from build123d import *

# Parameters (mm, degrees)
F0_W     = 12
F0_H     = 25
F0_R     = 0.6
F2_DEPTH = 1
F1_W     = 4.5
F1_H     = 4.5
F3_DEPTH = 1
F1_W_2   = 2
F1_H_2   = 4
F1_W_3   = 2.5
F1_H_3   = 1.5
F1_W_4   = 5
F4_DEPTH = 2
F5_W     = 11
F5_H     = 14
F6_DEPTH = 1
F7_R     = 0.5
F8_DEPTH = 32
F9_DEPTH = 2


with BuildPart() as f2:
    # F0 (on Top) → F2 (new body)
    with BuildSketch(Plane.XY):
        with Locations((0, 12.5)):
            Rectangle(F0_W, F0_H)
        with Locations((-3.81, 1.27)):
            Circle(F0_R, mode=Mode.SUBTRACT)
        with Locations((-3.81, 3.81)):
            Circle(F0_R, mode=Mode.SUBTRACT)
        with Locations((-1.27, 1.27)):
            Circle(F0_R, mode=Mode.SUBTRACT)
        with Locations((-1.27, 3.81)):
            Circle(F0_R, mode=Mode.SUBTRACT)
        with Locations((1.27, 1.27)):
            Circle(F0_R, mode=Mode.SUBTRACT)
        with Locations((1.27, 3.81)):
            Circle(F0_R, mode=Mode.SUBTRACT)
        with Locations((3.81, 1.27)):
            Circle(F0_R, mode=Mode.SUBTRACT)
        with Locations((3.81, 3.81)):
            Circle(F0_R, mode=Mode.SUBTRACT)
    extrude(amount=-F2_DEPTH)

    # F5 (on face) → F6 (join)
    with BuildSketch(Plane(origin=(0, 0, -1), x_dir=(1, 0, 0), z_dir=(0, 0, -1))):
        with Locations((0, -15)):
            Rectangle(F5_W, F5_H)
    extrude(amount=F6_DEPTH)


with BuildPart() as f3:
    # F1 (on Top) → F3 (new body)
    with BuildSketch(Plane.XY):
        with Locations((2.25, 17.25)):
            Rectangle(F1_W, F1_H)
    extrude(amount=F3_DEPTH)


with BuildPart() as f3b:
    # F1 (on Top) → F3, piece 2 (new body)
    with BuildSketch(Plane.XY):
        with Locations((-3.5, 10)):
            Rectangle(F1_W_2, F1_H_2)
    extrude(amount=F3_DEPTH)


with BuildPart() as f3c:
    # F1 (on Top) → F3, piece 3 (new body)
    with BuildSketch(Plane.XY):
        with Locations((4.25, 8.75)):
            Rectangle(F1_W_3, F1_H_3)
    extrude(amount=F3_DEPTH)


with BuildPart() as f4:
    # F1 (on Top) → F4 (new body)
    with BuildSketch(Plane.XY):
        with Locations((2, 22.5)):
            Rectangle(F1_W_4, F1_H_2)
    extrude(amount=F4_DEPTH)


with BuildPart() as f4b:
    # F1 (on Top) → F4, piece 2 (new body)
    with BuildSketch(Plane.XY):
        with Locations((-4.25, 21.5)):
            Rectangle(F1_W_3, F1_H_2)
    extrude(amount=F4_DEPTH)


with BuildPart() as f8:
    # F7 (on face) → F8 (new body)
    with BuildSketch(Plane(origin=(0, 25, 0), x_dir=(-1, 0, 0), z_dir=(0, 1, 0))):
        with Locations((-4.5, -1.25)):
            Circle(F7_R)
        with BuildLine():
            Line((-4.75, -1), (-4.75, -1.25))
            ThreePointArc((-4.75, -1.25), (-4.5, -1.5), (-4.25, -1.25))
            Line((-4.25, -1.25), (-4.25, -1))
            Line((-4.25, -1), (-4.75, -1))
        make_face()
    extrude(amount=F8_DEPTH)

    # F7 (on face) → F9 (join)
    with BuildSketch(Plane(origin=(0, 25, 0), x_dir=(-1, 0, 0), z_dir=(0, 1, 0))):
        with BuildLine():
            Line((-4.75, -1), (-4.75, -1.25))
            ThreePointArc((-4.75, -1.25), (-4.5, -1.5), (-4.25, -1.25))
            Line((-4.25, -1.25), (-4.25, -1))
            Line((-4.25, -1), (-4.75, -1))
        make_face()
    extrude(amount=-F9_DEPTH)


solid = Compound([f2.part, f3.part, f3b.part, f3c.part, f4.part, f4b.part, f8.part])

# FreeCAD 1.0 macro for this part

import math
import FreeCAD as App
import Part
import Sketcher

V = App.Vector
Q = App.Units.Quantity

doc = App.newDocument("Part")
params = doc.addObject("Spreadsheet::Sheet", "Params")
for row, (alias, value) in enumerate([
    ("sketch1_diameter", "1.2 mm"),
    ("sketch1_width", "12 mm"),
    ("sketch1_height", "25 mm"),
    ("pad1_length", "1 mm"),
    ("sketch2_width", "11 mm"),
    ("sketch2_height", "14 mm"),
    ("pad2_length", "1 mm"),
    ("sketch3_width", "4.5 mm"),
    ("pad3_length", "1 mm"),
    ("sketch4_width", "2 mm"),
    ("sketch4_height", "4 mm"),
    ("pad4_length", "1 mm"),
    ("sketch5_width", "2.5 mm"),
    ("sketch5_height", "1.5 mm"),
    ("pad5_length", "1 mm"),
    ("sketch6_width", "5 mm"),
    ("sketch6_height", "4 mm"),
    ("pad6_length", "2 mm"),
    ("sketch7_height", "4 mm"),
    ("sketch7_width", "2.5 mm"),
    ("pad7_length", "2 mm"),
    ("sketch8_diameter", "1 mm"),
    ("pad8_length", "32 mm"),
    ("sketch9_radius", "0.25 mm"),
    ("sketch9_height", "0.25 mm"),
    ("pad9_length", "2 mm"),
], start=1):
    params.set(f"A{row}", alias)
    params.set(f"B{row}", "=" + value)
    params.setAlias(f"B{row}", alias)

body = doc.addObject("PartDesign::Body", "Body")

sketch1 = body.newObject("Sketcher::SketchObject", "Sketch")
sketch1.AttachmentSupport = (doc.getObject("XY_Plane"), [""])
sketch1.MapMode = "FlatFace"
sketch1.addGeometry([
    Part.LineSegment(V(-6, 25, 0), V(-6, 0, 0)),
    Part.LineSegment(V(-6, 0, 0), V(6, 0, 0)),
    Part.LineSegment(V(6, 0, 0), V(6, 25, 0)),
    Part.LineSegment(V(6, 25, 0), V(-6, 25, 0)),
    Part.Circle(V(-3.81, 1.27, 0), V(0, 0, 1), 0.6),
    Part.Circle(V(-1.27, 1.27, 0), V(0, 0, 1), 0.6),
    Part.Circle(V(1.27, 1.27, 0), V(0, 0, 1), 0.6),
    Part.Circle(V(3.81, 1.27, 0), V(0, 0, 1), 0.6),
    Part.Circle(V(-3.81, 3.81, 0), V(0, 0, 1), 0.6),
    Part.Circle(V(-1.27, 3.81, 0), V(0, 0, 1), 0.6),
    Part.Circle(V(1.27, 3.81, 0), V(0, 0, 1), 0.6),
    Part.Circle(V(3.81, 3.81, 0), V(0, 0, 1), 0.6),
], False)
sketch1.addConstraint([
    Sketcher.Constraint("Coincident", 0, 2, 1, 1),
    Sketcher.Constraint("Coincident", 1, 2, 2, 1),
    Sketcher.Constraint("Coincident", 2, 2, 3, 1),
    Sketcher.Constraint("Coincident", 3, 2, 0, 1),
    Sketcher.Constraint("Vertical", 0),
    Sketcher.Constraint("Horizontal", 1),
    Sketcher.Constraint("Vertical", 2),
    Sketcher.Constraint("Horizontal", 3),
    Sketcher.Constraint("Equal", 4, 5),
    Sketcher.Constraint("Equal", 5, 6),
    Sketcher.Constraint("Equal", 6, 7),
    Sketcher.Constraint("Equal", 7, 8),
    Sketcher.Constraint("Equal", 8, 9),
    Sketcher.Constraint("Equal", 9, 10),
    Sketcher.Constraint("Equal", 10, 11),
    Sketcher.Constraint("Symmetric", 0, 2, 1, 2, -1, 1),
    Sketcher.Constraint("Symmetric", 5, 3, 6, 3, -2),
    Sketcher.Constraint("Symmetric", 4, 3, 7, 3, -2),
    Sketcher.Constraint("Symmetric", 9, 3, 10, 3, -2),
    Sketcher.Constraint("Symmetric", 8, 3, 11, 3, -2),
    Sketcher.Constraint("Horizontal", 4, 3, 5, 3),
    Sketcher.Constraint("Horizontal", 8, 3, 9, 3),
    Sketcher.Constraint("Vertical", 4, 3, 8, 3),
    Sketcher.Constraint("Vertical", 5, 3, 9, 3),
    Sketcher.Constraint("Diameter", 4, Q("1.2 mm")),
    Sketcher.Constraint("DistanceX", 1, 1, 1, 2, Q("12 mm")),
    Sketcher.Constraint("DistanceY", 0, 2, 0, 1, Q("25 mm")),
    Sketcher.Constraint("DistanceX", 4, 3, -1, 1, Q("3.81 mm")),
    Sketcher.Constraint("DistanceY", -1, 1, 4, 3, Q("1.27 mm")),
    Sketcher.Constraint("DistanceX", 5, 3, -1, 1, Q("1.27 mm")),
    Sketcher.Constraint("DistanceY", -1, 1, 8, 3, Q("3.81 mm")),
])
sketch1.setExpression("Constraints[24]", "Params.sketch1_diameter")
sketch1.setExpression("Constraints[25]", "Params.sketch1_width")
sketch1.setExpression("Constraints[26]", "Params.sketch1_height")
pad1 = body.newObject("PartDesign::Pad", "Pad")
pad1.Profile = sketch1
pad1.setExpression("Length", "Params.pad1_length")
pad1.Reversed = True

sketch2 = body.newObject("Sketcher::SketchObject", "Sketch001")
sketch2.AttachmentSupport = (doc.getObject("XY_Plane"), [""])
sketch2.MapMode = "FlatFace"
sketch2.AttachmentOffset = App.Placement(V(0, 0, -1), App.Rotation())
sketch2.addGeometry([
    Part.LineSegment(V(-5.5, 8, 0), V(-5.5, 22, 0)),
    Part.LineSegment(V(-5.5, 22, 0), V(5.5, 22, 0)),
    Part.LineSegment(V(5.5, 22, 0), V(5.5, 8, 0)),
    Part.LineSegment(V(5.5, 8, 0), V(-5.5, 8, 0)),
], False)
sketch2.addConstraint([
    Sketcher.Constraint("Coincident", 0, 2, 1, 1),
    Sketcher.Constraint("Coincident", 1, 2, 2, 1),
    Sketcher.Constraint("Coincident", 2, 2, 3, 1),
    Sketcher.Constraint("Coincident", 3, 2, 0, 1),
    Sketcher.Constraint("Vertical", 0),
    Sketcher.Constraint("Horizontal", 1),
    Sketcher.Constraint("Vertical", 2),
    Sketcher.Constraint("Horizontal", 3),
    Sketcher.Constraint("DistanceX", 1, 1, 1, 2, Q("11 mm")),
    Sketcher.Constraint("DistanceY", 0, 1, 0, 2, Q("14 mm")),
    Sketcher.Constraint("DistanceY", -1, 1, 0, 2, Q("22 mm")),
    Sketcher.Constraint("DistanceX", 0, 2, -1, 1, Q("5.5 mm")),
])
sketch2.setExpression("Constraints[8]", "Params.sketch2_width")
sketch2.setExpression("Constraints[9]", "Params.sketch2_height")
pad2 = body.newObject("PartDesign::Pad", "Pad001")
pad2.Profile = sketch2
pad2.setExpression("Length", "Params.pad2_length")
pad2.Reversed = True
body2 = doc.addObject("PartDesign::Body", "Body001")

sketch3 = body2.newObject("Sketcher::SketchObject", "Sketch002")
sketch3.AttachmentSupport = (doc.getObject("XY_Plane001"), [""])
sketch3.MapMode = "FlatFace"
sketch3.addGeometry([
    Part.LineSegment(V(0, 19.5, 0), V(0, 15, 0)),
    Part.LineSegment(V(0, 15, 0), V(4.5, 15, 0)),
    Part.LineSegment(V(4.5, 15, 0), V(4.5, 19.5, 0)),
    Part.LineSegment(V(4.5, 19.5, 0), V(0, 19.5, 0)),
], False)
sketch3.addConstraint([
    Sketcher.Constraint("Coincident", 0, 2, 1, 1),
    Sketcher.Constraint("Coincident", 1, 2, 2, 1),
    Sketcher.Constraint("Coincident", 2, 2, 3, 1),
    Sketcher.Constraint("Coincident", 3, 2, 0, 1),
    Sketcher.Constraint("Vertical", 0),
    Sketcher.Constraint("Horizontal", 1),
    Sketcher.Constraint("Vertical", 2),
    Sketcher.Constraint("Horizontal", 3),
    Sketcher.Constraint("PointOnObject", 0, 2, -2),
    Sketcher.Constraint("Equal", 3, 0),
    Sketcher.Constraint("DistanceX", 1, 1, 1, 2, Q("4.5 mm")),
    Sketcher.Constraint("DistanceY", -1, 1, 0, 2, Q("15 mm")),
])
sketch3.setExpression("Constraints[10]", "Params.sketch3_width")
pad3 = body2.newObject("PartDesign::Pad", "Pad002")
pad3.Profile = sketch3
pad3.setExpression("Length", "Params.pad3_length")
body3 = doc.addObject("PartDesign::Body", "Body002")

sketch4 = body3.newObject("Sketcher::SketchObject", "Sketch003")
sketch4.AttachmentSupport = (doc.getObject("XY_Plane002"), [""])
sketch4.MapMode = "FlatFace"
sketch4.addGeometry([
    Part.LineSegment(V(-4.5, 12, 0), V(-4.5, 8, 0)),
    Part.LineSegment(V(-4.5, 8, 0), V(-2.5, 8, 0)),
    Part.LineSegment(V(-2.5, 8, 0), V(-2.5, 12, 0)),
    Part.LineSegment(V(-2.5, 12, 0), V(-4.5, 12, 0)),
], False)
sketch4.addConstraint([
    Sketcher.Constraint("Coincident", 0, 2, 1, 1),
    Sketcher.Constraint("Coincident", 1, 2, 2, 1),
    Sketcher.Constraint("Coincident", 2, 2, 3, 1),
    Sketcher.Constraint("Coincident", 3, 2, 0, 1),
    Sketcher.Constraint("Vertical", 0),
    Sketcher.Constraint("Horizontal", 1),
    Sketcher.Constraint("Vertical", 2),
    Sketcher.Constraint("Horizontal", 3),
    Sketcher.Constraint("DistanceX", 1, 1, 1, 2, Q("2 mm")),
    Sketcher.Constraint("DistanceY", 0, 2, 0, 1, Q("4 mm")),
    Sketcher.Constraint("DistanceY", -1, 1, 0, 2, Q("8 mm")),
    Sketcher.Constraint("DistanceX", 0, 2, -1, 1, Q("4.5 mm")),
])
sketch4.setExpression("Constraints[8]", "Params.sketch4_width")
sketch4.setExpression("Constraints[9]", "Params.sketch4_height")
pad4 = body3.newObject("PartDesign::Pad", "Pad003")
pad4.Profile = sketch4
pad4.setExpression("Length", "Params.pad4_length")
body4 = doc.addObject("PartDesign::Body", "Body003")

sketch5 = body4.newObject("Sketcher::SketchObject", "Sketch004")
sketch5.AttachmentSupport = (doc.getObject("XY_Plane003"), [""])
sketch5.MapMode = "FlatFace"
sketch5.addGeometry([
    Part.LineSegment(V(3, 9.5, 0), V(3, 8, 0)),
    Part.LineSegment(V(3, 8, 0), V(5.5, 8, 0)),
    Part.LineSegment(V(5.5, 8, 0), V(5.5, 9.5, 0)),
    Part.LineSegment(V(5.5, 9.5, 0), V(3, 9.5, 0)),
], False)
sketch5.addConstraint([
    Sketcher.Constraint("Coincident", 0, 2, 1, 1),
    Sketcher.Constraint("Coincident", 1, 2, 2, 1),
    Sketcher.Constraint("Coincident", 2, 2, 3, 1),
    Sketcher.Constraint("Coincident", 3, 2, 0, 1),
    Sketcher.Constraint("Vertical", 0),
    Sketcher.Constraint("Horizontal", 1),
    Sketcher.Constraint("Vertical", 2),
    Sketcher.Constraint("Horizontal", 3),
    Sketcher.Constraint("DistanceX", 1, 1, 1, 2, Q("2.5 mm")),
    Sketcher.Constraint("DistanceY", 0, 2, 0, 1, Q("1.5 mm")),
    Sketcher.Constraint("DistanceX", -1, 1, 0, 2, Q("3 mm")),
    Sketcher.Constraint("DistanceY", -1, 1, 0, 2, Q("8 mm")),
])
sketch5.setExpression("Constraints[8]", "Params.sketch5_width")
sketch5.setExpression("Constraints[9]", "Params.sketch5_height")
pad5 = body4.newObject("PartDesign::Pad", "Pad004")
pad5.Profile = sketch5
pad5.setExpression("Length", "Params.pad5_length")
body5 = doc.addObject("PartDesign::Body", "Body004")

sketch6 = body5.newObject("Sketcher::SketchObject", "Sketch005")
sketch6.AttachmentSupport = (doc.getObject("XY_Plane004"), [""])
sketch6.MapMode = "FlatFace"
sketch6.addGeometry([
    Part.LineSegment(V(-0.5, 24.5, 0), V(-0.5, 20.5, 0)),
    Part.LineSegment(V(-0.5, 20.5, 0), V(4.5, 20.5, 0)),
    Part.LineSegment(V(4.5, 20.5, 0), V(4.5, 24.5, 0)),
    Part.LineSegment(V(4.5, 24.5, 0), V(-0.5, 24.5, 0)),
], False)
sketch6.addConstraint([
    Sketcher.Constraint("Coincident", 0, 2, 1, 1),
    Sketcher.Constraint("Coincident", 1, 2, 2, 1),
    Sketcher.Constraint("Coincident", 2, 2, 3, 1),
    Sketcher.Constraint("Coincident", 3, 2, 0, 1),
    Sketcher.Constraint("Vertical", 0),
    Sketcher.Constraint("Horizontal", 1),
    Sketcher.Constraint("Vertical", 2),
    Sketcher.Constraint("Horizontal", 3),
    Sketcher.Constraint("DistanceX", 1, 1, 1, 2, Q("5 mm")),
    Sketcher.Constraint("DistanceY", 0, 2, 0, 1, Q("4 mm")),
    Sketcher.Constraint("DistanceX", 0, 2, -1, 1, Q("0.5 mm")),
    Sketcher.Constraint("DistanceY", -1, 1, 0, 2, Q("20.5 mm")),
])
sketch6.setExpression("Constraints[8]", "Params.sketch6_width")
sketch6.setExpression("Constraints[9]", "Params.sketch6_height")
pad6 = body5.newObject("PartDesign::Pad", "Pad005")
pad6.Profile = sketch6
pad6.setExpression("Length", "Params.pad6_length")
body6 = doc.addObject("PartDesign::Body", "Body005")

sketch7 = body6.newObject("Sketcher::SketchObject", "Sketch006")
sketch7.AttachmentSupport = (doc.getObject("XY_Plane005"), [""])
sketch7.MapMode = "FlatFace"
sketch7.addGeometry([
    Part.LineSegment(V(-5.5, 23.5, 0), V(-5.5, 19.5, 0)),
    Part.LineSegment(V(-5.5, 19.5, 0), V(-3, 19.5, 0)),
    Part.LineSegment(V(-3, 19.5, 0), V(-3, 23.5, 0)),
    Part.LineSegment(V(-3, 23.5, 0), V(-5.5, 23.5, 0)),
], False)
sketch7.addConstraint([
    Sketcher.Constraint("Coincident", 0, 2, 1, 1),
    Sketcher.Constraint("Coincident", 1, 2, 2, 1),
    Sketcher.Constraint("Coincident", 2, 2, 3, 1),
    Sketcher.Constraint("Coincident", 3, 2, 0, 1),
    Sketcher.Constraint("Vertical", 0),
    Sketcher.Constraint("Horizontal", 1),
    Sketcher.Constraint("Vertical", 2),
    Sketcher.Constraint("Horizontal", 3),
    Sketcher.Constraint("DistanceY", 0, 2, 0, 1, Q("4 mm")),
    Sketcher.Constraint("DistanceX", 1, 1, 1, 2, Q("2.5 mm")),
    Sketcher.Constraint("DistanceX", 1, 2, -1, 1, Q("3 mm")),
    Sketcher.Constraint("DistanceY", -1, 1, 0, 2, Q("19.5 mm")),
])
sketch7.setExpression("Constraints[8]", "Params.sketch7_height")
sketch7.setExpression("Constraints[9]", "Params.sketch7_width")
pad7 = body6.newObject("PartDesign::Pad", "Pad006")
pad7.Profile = sketch7
pad7.setExpression("Length", "Params.pad7_length")
body7 = doc.addObject("PartDesign::Body", "Body006")

sketch8 = body7.newObject("Sketcher::SketchObject", "Sketch007")
sketch8.AttachmentSupport = (doc.getObject("XZ_Plane006"), [""])
sketch8.MapMode = "FlatFace"
sketch8.AttachmentOffset = App.Placement(V(0, 0, -25), App.Rotation())
sketch8.addGeometry(Part.Circle(V(4.5, -1.25, 0), V(0, 0, 1), 0.5), False)
sketch8.addConstraint([
    Sketcher.Constraint("Diameter", 0, Q("1 mm")),
    Sketcher.Constraint("DistanceX", -1, 1, 0, 3, Q("4.5 mm")),
    Sketcher.Constraint("DistanceY", 0, 3, -1, 1, Q("1.25 mm")),
])
sketch8.setExpression("Constraints[0]", "Params.sketch8_diameter")
pad8 = body7.newObject("PartDesign::Pad", "Pad007")
pad8.Profile = sketch8
pad8.setExpression("Length", "Params.pad8_length")
pad8.Reversed = True

sketch9 = body7.newObject("Sketcher::SketchObject", "Sketch008")
sketch9.AttachmentSupport = (doc.getObject("XZ_Plane006"), [""])
sketch9.MapMode = "FlatFace"
sketch9.AttachmentOffset = App.Placement(V(0, 0, -25), App.Rotation())
sketch9.addGeometry([
    Part.LineSegment(V(4.75, -1, 0), V(4.75, -1.25, 0)),
    Part.ArcOfCircle(Part.Circle(V(4.5, -1.25, 0), V(0, 0, 1), 0.25), math.radians(180), math.radians(360)),
    Part.LineSegment(V(4.25, -1.25, 0), V(4.25, -1, 0)),
    Part.LineSegment(V(4.25, -1, 0), V(4.75, -1, 0)),
], False)
sketch9.addConstraint([
    Sketcher.Constraint("Tangent", 0, 2, 1, 2),
    Sketcher.Constraint("Tangent", 1, 1, 2, 1),
    Sketcher.Constraint("Coincident", 2, 2, 3, 1),
    Sketcher.Constraint("Coincident", 3, 2, 0, 1),
    Sketcher.Constraint("Vertical", 0),
    Sketcher.Constraint("Vertical", 2),
    Sketcher.Constraint("Horizontal", 3),
    Sketcher.Constraint("Radius", 1, Q("0.25 mm")),
    Sketcher.Constraint("DistanceY", 2, 2, -1, 1, Q("1 mm")),
    Sketcher.Constraint("DistanceY", 0, 2, 0, 1, Q("0.25 mm")),
    Sketcher.Constraint("DistanceX", -1, 1, 1, 3, Q("4.5 mm")),
])
sketch9.setExpression("Constraints[7]", "Params.sketch9_radius")
sketch9.setExpression("Constraints[9]", "Params.sketch9_height")
pad9 = body7.newObject("PartDesign::Pad", "Pad008")
pad9.Profile = sketch9
pad9.setExpression("Length", "Params.pad9_length")

doc.recompute()
